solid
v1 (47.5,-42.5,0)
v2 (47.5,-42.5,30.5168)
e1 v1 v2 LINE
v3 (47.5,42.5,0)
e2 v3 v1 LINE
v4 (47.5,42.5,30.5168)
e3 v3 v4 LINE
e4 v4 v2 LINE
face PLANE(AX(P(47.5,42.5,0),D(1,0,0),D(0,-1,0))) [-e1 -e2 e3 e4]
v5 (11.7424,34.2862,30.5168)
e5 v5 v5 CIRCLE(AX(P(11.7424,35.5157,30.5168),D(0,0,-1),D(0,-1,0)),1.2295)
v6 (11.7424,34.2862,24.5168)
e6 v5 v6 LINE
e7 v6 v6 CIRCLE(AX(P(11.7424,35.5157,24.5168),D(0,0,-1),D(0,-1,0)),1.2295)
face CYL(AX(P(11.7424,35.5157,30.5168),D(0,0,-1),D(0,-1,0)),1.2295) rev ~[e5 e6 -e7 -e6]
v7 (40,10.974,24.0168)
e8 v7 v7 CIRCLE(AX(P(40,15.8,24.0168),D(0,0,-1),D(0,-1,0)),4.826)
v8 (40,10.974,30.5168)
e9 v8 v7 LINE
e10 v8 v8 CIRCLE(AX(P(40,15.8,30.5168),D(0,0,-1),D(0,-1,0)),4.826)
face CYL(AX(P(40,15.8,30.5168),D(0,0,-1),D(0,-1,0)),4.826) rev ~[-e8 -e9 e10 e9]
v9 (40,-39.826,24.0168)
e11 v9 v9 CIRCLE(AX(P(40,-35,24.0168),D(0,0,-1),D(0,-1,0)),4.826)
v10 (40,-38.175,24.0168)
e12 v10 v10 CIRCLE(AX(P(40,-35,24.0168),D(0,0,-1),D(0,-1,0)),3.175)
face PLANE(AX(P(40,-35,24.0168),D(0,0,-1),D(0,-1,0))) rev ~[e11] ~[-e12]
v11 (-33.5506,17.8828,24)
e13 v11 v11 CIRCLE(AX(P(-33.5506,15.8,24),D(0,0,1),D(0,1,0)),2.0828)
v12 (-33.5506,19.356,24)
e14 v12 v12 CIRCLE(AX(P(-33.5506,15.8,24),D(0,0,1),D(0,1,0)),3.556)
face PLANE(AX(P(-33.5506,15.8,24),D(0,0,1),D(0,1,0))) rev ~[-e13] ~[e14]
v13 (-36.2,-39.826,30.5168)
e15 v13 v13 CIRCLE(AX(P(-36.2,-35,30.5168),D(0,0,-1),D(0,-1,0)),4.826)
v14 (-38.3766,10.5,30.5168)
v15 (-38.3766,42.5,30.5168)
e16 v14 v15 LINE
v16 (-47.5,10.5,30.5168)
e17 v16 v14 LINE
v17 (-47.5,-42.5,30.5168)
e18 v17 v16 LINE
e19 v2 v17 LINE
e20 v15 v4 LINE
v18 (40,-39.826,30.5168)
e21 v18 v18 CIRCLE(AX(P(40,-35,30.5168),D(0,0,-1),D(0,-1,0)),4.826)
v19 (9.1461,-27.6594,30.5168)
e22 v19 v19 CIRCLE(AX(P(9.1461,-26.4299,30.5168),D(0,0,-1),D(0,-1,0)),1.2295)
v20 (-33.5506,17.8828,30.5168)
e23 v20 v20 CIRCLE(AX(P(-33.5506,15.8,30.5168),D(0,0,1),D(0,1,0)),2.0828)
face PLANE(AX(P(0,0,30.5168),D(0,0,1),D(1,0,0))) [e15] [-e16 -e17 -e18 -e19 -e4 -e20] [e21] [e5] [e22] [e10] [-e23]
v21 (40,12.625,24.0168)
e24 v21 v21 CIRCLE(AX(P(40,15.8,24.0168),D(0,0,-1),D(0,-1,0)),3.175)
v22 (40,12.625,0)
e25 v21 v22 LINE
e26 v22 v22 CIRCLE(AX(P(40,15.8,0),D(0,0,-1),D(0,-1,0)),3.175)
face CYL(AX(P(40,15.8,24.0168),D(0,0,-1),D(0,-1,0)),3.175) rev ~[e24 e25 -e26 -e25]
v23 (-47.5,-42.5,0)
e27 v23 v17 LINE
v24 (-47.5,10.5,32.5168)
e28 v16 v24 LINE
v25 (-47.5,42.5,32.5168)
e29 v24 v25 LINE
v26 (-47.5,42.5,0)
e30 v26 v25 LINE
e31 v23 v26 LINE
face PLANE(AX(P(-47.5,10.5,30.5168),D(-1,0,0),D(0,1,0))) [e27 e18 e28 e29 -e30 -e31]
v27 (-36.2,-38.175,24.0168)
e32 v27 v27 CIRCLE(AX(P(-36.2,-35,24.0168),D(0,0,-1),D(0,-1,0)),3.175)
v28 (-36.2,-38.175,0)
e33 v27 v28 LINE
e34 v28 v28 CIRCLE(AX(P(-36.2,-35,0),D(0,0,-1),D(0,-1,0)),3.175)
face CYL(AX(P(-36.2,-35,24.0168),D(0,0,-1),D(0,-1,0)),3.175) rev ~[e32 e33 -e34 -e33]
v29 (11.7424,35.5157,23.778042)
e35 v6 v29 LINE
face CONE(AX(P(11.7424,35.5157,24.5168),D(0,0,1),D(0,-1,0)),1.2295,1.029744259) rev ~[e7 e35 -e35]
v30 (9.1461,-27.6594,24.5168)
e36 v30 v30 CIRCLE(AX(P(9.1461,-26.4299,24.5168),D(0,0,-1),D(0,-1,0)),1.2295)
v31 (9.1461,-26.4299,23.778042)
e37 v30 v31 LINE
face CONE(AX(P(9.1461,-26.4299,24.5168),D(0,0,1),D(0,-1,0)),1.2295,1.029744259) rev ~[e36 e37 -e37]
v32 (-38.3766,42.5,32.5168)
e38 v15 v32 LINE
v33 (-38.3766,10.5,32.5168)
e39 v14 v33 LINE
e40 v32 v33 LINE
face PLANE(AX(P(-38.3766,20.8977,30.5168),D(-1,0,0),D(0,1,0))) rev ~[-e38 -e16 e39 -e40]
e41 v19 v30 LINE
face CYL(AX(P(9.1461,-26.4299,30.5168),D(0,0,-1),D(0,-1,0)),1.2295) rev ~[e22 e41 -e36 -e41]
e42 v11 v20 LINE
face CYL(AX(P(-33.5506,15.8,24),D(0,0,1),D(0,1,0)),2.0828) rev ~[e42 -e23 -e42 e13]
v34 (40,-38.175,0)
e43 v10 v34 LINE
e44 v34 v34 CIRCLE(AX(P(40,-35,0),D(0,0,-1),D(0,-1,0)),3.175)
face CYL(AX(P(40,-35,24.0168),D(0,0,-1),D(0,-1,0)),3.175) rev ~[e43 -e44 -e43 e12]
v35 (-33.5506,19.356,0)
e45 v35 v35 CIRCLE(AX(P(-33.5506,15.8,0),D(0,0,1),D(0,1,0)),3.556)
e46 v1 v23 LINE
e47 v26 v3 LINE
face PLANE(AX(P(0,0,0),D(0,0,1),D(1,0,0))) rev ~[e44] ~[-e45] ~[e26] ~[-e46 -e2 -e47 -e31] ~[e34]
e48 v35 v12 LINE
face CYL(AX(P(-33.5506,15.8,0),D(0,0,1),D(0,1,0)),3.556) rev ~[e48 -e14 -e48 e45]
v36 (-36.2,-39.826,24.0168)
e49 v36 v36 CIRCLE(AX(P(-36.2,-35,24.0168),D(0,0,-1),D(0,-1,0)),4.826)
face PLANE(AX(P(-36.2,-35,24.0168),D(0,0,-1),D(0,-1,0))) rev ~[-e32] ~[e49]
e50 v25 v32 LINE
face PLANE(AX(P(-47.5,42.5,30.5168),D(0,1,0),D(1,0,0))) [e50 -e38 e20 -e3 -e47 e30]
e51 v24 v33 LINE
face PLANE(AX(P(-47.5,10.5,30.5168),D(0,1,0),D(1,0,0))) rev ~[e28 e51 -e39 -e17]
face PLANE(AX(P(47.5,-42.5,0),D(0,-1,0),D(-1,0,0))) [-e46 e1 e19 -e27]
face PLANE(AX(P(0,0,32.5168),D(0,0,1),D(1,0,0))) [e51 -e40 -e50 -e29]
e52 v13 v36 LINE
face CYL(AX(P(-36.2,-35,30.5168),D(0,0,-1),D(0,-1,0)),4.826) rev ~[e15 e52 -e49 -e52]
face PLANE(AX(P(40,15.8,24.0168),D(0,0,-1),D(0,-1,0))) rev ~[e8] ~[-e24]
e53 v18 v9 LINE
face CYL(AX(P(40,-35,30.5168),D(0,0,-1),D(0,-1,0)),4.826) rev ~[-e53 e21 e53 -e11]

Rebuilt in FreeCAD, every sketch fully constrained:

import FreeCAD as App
import Part
import Sketcher

V = App.Vector


def add_polygon(sketch, points):
    """Adds a closed chain of lines whose ends are joined by coincident constraints."""
    first, n = sketch.GeometryCount, len(points)
    for a, b in zip(points, points[1:] + points[:1]):
        sketch.addGeometry(Part.LineSegment(App.Vector(*a, 0), App.Vector(*b, 0)), False)
    for i in range(n):
        sketch.addConstraint(Sketcher.Constraint("Coincident", first + i, 2, first + (i + 1) % n, 1))

doc = App.newDocument("Part")
body = doc.addObject("PartDesign::Body", "Body")

sketch1 = doc.addObject("Sketcher::SketchObject", "Sketch")
body.addObject(sketch1)
sketch1.AttachmentSupport = (doc.XY_Plane, [""])
sketch1.MapMode = "FlatFace"
add_polygon(sketch1, [(48, 42), (-48, 42), (-48, -42), (48, -42)])
sketch1.addConstraint(Sketcher.Constraint("Horizontal", 0))
sketch1.addConstraint(Sketcher.Constraint("Vertical", 1))
sketch1.addConstraint(Sketcher.Constraint("Horizontal", 2))
sketch1.addConstraint(Sketcher.Constraint("Vertical", 3))
sketch1.addConstraint(Sketcher.Constraint("Symmetric", 0, 2, 2, 2, -1, 1))
sketch1.addConstraint(Sketcher.Constraint("DistanceX", 0, 2, 0, 1, 95.0))
sketch1.addConstraint(Sketcher.Constraint("DistanceY", 1, 2, 1, 1, 85.0))
pad1 = doc.addObject("PartDesign::Pad", "Pad")
body.addObject(pad1)
pad1.Profile = sketch1
pad1.Length = 30.5168

sketch2 = doc.addObject("Sketcher::SketchObject", "Sketch001")
body.addObject(sketch2)
sketch2.AttachmentSupport = (doc.XY_Plane, [""])
sketch2.MapMode = "FlatFace"
sketch2.AttachmentOffset = App.Placement(V(0, 0, 30.5168), App.Rotation())
sketch2.addGeometry(Part.Circle(V(40, 15.8, 0), V(0, 0, 1), 3.2), False)
sketch2.addGeometry(Part.Circle(V(40, -35, 0), V(0, 0, 1), 3.2), False)
sketch2.addGeometry(Part.Circle(V(-36.2, -35, 0), V(0, 0, 1), 3.2), False)
sketch2.addConstraint(Sketcher.Constraint("Equal", 0, 1))
sketch2.addConstraint(Sketcher.Constraint("Equal", 1, 2))
sketch2.addConstraint(Sketcher.Constraint("Horizontal", 1, 3, 2, 3))
sketch2.addConstraint(Sketcher.Constraint("Vertical", 0, 3, 1, 3))
sketch2.addConstraint(Sketcher.Constraint("Diameter", 0, 6.35))
sketch2.addConstraint(Sketcher.Constraint("DistanceX", -1, 1, 0, 3, 40.0))
sketch2.addConstraint(Sketcher.Constraint("DistanceY", 1, 3, -1, 1, 35.0))
sketch2.addConstraint(Sketcher.Constraint("DistanceY", -1, 1, 0, 3, 15.8))
sketch2.addConstraint(Sketcher.Constraint("DistanceX", 2, 3, -1, 1, 36.2))
doc.recompute()
hole = doc.addObject("PartDesign::Hole", "Hole")
body.addObject(hole)
hole.Profile = sketch2
hole.ThreadType = "None"
hole.Diameter = 6.35
hole.DepthType = "ThroughAll"
hole.HoleCutType = "Counterbore"
hole.HoleCutDiameter = 9.652
hole.HoleCutDepth = 6.5

sketch3 = doc.addObject("Sketcher::SketchObject", "Sketch002")
body.addObject(sketch3)
sketch3.AttachmentSupport = (doc.XY_Plane, [""])
sketch3.MapMode = "FlatFace"
sketch3.AttachmentOffset = App.Placement(V(0, 0, 30.5168), App.Rotation())
sketch3.addGeometry(Part.Circle(V(9.1, -26.4, 0), V(0, 0, 1), 1.2), False)
sketch3.addGeometry(Part.Circle(V(11.7, 35.5, 0), V(0, 0, 1), 1.2), False)
sketch3.addConstraint(Sketcher.Constraint("Equal", 0, 1))
sketch3.addConstraint(Sketcher.Constraint("Diameter", 0, 2.459))
sketch3.addConstraint(Sketcher.Constraint("DistanceY", 0, 3, -1, 1, 26.43))
sketch3.addConstraint(Sketcher.Constraint("DistanceX", -1, 1, 0, 3, 9.146))
sketch3.addConstraint(Sketcher.Constraint("DistanceX", -1, 1, 1, 3, 11.7424))
sketch3.addConstraint(Sketcher.Constraint("DistanceY", -1, 1, 1, 3, 35.5157))
doc.recompute()
hole2 = doc.addObject("PartDesign::Hole", "Hole001")
body.addObject(hole2)
hole2.Profile = sketch3
hole2.ThreadType = "None"
hole2.Diameter = 2.459
hole2.DepthType = "Dimension"
hole2.Depth = 6
hole2.DrillPoint = "Angled"
hole2.DrillPointAngle = 118

sketch4 = doc.addObject("Sketcher::SketchObject", "Sketch003")
body.addObject(sketch4)
sketch4.AttachmentSupport = (doc.XY_Plane, [""])
sketch4.MapMode = "FlatFace"
sketch4.addGeometry(Part.Circle(V(-33.6, 15.8, 0), V(0, 0, 1), 2.1), False)
sketch4.addConstraint(Sketcher.Constraint("Diameter", 0, 4.1656))
sketch4.addConstraint(Sketcher.Constraint("DistanceY", -1, 1, 0, 3, 15.8))
sketch4.addConstraint(Sketcher.Constraint("DistanceX", 0, 3, -1, 1, 33.5506))
doc.recompute()
hole3 = doc.addObject("PartDesign::Hole", "Hole002")
body.addObject(hole3)
hole3.Profile = sketch4
hole3.ThreadType = "None"
hole3.Diameter = 4.1656
hole3.DepthType = "ThroughAll"
hole3.HoleCutType = "Counterbore"
hole3.HoleCutDiameter = 7.112
hole3.HoleCutDepth = 24
hole3.Reversed = True

sketch5 = doc.addObject("Sketcher::SketchObject", "Sketch004")
body.addObject(sketch5)
sketch5.AttachmentSupport = (doc.XY_Plane, [""])
sketch5.MapMode = "FlatFace"
sketch5.AttachmentOffset = App.Placement(V(0, 0, 30.5168), App.Rotation())
add_polygon(sketch5, [(-38, 42), (-48, 42), (-48, 10), (-38, 10)])
sketch5.addConstraint(Sketcher.Constraint("Horizontal", 0))
sketch5.addConstraint(Sketcher.Constraint("Vertical", 1))
sketch5.addConstraint(Sketcher.Constraint("Horizontal", 2))
sketch5.addConstraint(Sketcher.Constraint("Vertical", 3))
sketch5.addConstraint(Sketcher.Constraint("DistanceY", 1, 2, 1, 1, 32.0))
sketch5.addConstraint(Sketcher.Constraint("DistanceX", 0, 2, -1, 1, 47.5))
sketch5.addConstraint(Sketcher.Constraint("DistanceY", -1, 1, 0, 2, 42.5))
sketch5.addConstraint(Sketcher.Constraint("DistanceX", 0, 2, 0, 1, 9.1234))
pad2 = doc.addObject("PartDesign::Pad", "Pad001")
body.addObject(pad2)
pad2.Profile = sketch5
pad2.Length = 2

doc.recompute()
